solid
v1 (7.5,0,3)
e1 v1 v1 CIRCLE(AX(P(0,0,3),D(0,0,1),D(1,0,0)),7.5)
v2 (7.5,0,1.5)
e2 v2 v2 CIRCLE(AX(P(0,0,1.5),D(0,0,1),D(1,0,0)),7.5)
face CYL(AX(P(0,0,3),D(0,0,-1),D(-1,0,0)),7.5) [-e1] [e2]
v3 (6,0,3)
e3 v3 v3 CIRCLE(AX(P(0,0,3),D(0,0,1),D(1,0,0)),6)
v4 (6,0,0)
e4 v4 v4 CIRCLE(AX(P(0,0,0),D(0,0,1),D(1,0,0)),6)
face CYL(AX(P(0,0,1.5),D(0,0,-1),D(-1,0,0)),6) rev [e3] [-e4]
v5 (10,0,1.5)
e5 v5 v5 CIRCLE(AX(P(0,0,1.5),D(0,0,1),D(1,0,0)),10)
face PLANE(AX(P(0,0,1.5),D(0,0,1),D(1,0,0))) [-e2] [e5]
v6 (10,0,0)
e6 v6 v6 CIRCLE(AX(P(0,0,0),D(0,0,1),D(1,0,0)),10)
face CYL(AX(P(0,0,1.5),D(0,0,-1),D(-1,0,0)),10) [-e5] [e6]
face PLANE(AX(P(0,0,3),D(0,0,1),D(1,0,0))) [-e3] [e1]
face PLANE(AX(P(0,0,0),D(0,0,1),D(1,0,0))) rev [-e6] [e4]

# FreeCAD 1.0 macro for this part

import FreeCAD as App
import Part
import Sketcher
from FreeCAD import Vector
Q = App.Units.Quantity

doc = App.newDocument("Part")
params = doc.addObject("Spreadsheet::Sheet", "Params")
for row, (alias, value) in enumerate([
    ("sketch1_diameter", "20 mm"),
    ("sketch1_diameter2", "12 mm"),
    ("pad1_length", "1.5 mm"),
    ("sketch2_diameter", "15 mm"),
    ("sketch2_diameter2", "12 mm"),
    ("pad2_length", "1.5 mm"),
], start=1):
    params.set(f"A{row}", alias)
    params.set(f"B{row}", "=" + value)
    params.setAlias(f"B{row}", alias)

body = doc.addObject("PartDesign::Body", "Body")

# Sketch on XY plane
sketch1 = doc.addObject("Sketcher::SketchObject", "Sketch")
body.addObject(sketch1)
sketch1.AttachmentSupport = (doc.XY_Plane, [""])
sketch1.MapMode = "FlatFace"
sketch1.addGeometry([
    Part.Circle(Vector(0, 0, 0), Vector(0, 0, 1), 10),
    Part.Circle(Vector(0, 0, 0), Vector(0, 0, 1), 6),
], False)
sketch1.addConstraint([
    Sketcher.Constraint("Coincident", 0, 3, -1, 1),
    Sketcher.Constraint("Coincident", 1, 3, -1, 1),
    Sketcher.Constraint("Diameter", 0, Q("20 mm")),
    Sketcher.Constraint("Diameter", 1, Q("12 mm")),
])
sketch1.setExpression("Constraints[2]", "Params.sketch1_diameter")
sketch1.setExpression("Constraints[3]", "Params.sketch1_diameter2")
pad1 = doc.addObject("PartDesign::Pad", "Pad")
body.addObject(pad1)
pad1.Profile = sketch1
pad1.setExpression("Length", "Params.pad1_length")

# Sketch on XY plane
sketch2 = doc.addObject("Sketcher::SketchObject", "Sketch001")
body.addObject(sketch2)
sketch2.AttachmentSupport = (doc.XY_Plane, [""])
sketch2.MapMode = "FlatFace"
sketch2.AttachmentOffset = App.Placement(Vector(0, 0, 1.5), App.Rotation())
sketch2.addGeometry([
    Part.Circle(Vector(0, 0, 0), Vector(0, 0, 1), 7.5),
    Part.Circle(Vector(0, 0, 0), Vector(0, 0, 1), 6),
], False)
sketch2.addConstraint([
    Sketcher.Constraint("Coincident", 0, 3, -1, 1),
    Sketcher.Constraint("Coincident", 1, 3, -1, 1),
    Sketcher.Constraint("Diameter", 0, Q("15 mm")),
    Sketcher.Constraint("Diameter", 1, Q("12 mm")),
])
sketch2.setExpression("Constraints[2]", "Params.sketch2_diameter")
sketch2.setExpression("Constraints[3]", "Params.sketch2_diameter2")
pad2 = doc.addObject("PartDesign::Pad", "Pad001")
body.addObject(pad2)
pad2.Profile = sketch2
pad2.setExpression("Length", "Params.pad2_length")

doc.recompute()
